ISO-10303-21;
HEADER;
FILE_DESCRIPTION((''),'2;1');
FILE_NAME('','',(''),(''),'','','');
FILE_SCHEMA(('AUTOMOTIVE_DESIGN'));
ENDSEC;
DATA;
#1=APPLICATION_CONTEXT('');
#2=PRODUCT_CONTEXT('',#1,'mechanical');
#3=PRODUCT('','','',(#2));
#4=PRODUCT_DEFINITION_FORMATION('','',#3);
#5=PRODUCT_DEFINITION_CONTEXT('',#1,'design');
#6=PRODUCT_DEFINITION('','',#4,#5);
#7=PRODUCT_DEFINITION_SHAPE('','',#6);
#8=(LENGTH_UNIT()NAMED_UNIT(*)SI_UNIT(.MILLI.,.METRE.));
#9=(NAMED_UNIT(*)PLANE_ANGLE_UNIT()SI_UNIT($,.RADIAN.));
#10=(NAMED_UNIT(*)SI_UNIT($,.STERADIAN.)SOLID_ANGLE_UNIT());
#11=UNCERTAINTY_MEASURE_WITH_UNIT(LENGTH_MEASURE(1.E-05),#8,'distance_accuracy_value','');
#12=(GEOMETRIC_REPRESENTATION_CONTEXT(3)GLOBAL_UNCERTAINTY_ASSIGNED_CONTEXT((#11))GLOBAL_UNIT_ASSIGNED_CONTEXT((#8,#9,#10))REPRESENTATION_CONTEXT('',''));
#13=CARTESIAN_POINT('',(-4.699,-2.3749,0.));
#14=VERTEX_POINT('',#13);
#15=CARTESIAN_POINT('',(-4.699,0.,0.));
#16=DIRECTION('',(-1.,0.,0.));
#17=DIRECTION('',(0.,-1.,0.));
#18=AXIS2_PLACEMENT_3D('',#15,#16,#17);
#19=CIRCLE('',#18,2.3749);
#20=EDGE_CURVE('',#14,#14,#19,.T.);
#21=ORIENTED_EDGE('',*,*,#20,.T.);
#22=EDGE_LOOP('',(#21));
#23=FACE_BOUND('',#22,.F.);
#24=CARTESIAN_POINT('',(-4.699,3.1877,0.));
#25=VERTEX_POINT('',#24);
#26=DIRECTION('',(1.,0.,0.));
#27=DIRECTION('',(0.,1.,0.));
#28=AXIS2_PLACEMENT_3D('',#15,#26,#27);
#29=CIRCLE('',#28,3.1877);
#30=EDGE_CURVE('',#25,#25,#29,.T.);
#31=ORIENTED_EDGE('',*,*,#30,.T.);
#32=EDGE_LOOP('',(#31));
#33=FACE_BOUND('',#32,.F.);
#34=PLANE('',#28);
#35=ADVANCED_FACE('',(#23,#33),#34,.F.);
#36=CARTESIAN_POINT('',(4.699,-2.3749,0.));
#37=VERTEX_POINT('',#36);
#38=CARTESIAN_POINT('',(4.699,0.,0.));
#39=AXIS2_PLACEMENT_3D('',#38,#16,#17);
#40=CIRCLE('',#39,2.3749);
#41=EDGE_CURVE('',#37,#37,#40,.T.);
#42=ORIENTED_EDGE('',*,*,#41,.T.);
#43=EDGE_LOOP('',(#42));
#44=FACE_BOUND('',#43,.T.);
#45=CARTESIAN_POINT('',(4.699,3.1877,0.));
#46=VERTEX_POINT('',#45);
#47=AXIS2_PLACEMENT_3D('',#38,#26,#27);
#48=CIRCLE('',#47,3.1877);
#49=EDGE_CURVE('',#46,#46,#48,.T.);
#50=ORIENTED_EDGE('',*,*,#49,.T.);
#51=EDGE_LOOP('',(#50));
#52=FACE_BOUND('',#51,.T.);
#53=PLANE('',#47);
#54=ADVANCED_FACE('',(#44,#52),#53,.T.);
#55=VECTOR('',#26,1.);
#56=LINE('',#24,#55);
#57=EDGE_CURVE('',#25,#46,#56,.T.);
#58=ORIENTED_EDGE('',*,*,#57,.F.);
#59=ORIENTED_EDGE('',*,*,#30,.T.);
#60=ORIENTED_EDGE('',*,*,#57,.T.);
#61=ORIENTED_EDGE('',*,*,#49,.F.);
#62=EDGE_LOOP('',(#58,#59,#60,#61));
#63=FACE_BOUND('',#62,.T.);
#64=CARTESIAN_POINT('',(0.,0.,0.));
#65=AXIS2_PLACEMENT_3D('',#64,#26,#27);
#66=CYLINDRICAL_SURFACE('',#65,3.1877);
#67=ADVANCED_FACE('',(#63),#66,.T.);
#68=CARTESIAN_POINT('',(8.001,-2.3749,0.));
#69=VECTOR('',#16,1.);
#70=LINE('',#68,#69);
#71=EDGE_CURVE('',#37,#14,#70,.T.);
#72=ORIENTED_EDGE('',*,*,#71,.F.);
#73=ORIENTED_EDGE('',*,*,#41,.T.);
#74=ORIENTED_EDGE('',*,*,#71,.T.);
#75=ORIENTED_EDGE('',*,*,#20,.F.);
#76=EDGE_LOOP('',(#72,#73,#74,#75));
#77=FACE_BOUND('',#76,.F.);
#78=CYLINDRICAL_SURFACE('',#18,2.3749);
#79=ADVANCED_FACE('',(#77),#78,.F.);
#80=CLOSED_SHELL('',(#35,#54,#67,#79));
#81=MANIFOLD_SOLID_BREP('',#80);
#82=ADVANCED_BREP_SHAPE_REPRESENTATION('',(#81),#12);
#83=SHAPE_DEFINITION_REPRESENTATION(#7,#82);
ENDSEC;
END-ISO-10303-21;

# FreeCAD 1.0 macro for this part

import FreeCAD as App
import Part
import Sketcher

V = App.Vector
Q = App.Units.Quantity

doc = App.newDocument("Part")
body = doc.addObject("PartDesign::Body", "Body")

sketch1 = body.newObject("Sketcher::SketchObject", "Sketch")
sketch1.AttachmentSupport = (doc.getObject("YZ_Plane"), [""])
sketch1.MapMode = "FlatFace"
sketch1.addGeometry(Part.Circle(V(0, 0, 0), V(0, 0, 1), 3.2), False)
sketch1.addConstraint([
    Sketcher.Constraint("Coincident", 0, 3, -1, 1),
    Sketcher.Constraint("Diameter", 0, Q("0.251 in")),
])
pad1 = body.newObject("PartDesign::Pad", "Pad")
pad1.Profile = sketch1
pad1.Length = Q("0.37 in")
pad1.Midplane = True

sketch2 = body.newObject("Sketcher::SketchObject", "Sketch001")
sketch2.AttachmentSupport = (doc.getObject("YZ_Plane"), [""])
sketch2.MapMode = "FlatFace"
sketch2.AttachmentOffset = App.Placement(V(0, 0, -0.185 * 25.4), App.Rotation())
sketch2.addGeometry(Part.Circle(V(0, 0, 0), V(0, 0, 1), 2.4), False)
sketch2.addConstraint([
    Sketcher.Constraint("Coincident", 0, 3, -1, 1),
    Sketcher.Constraint("Diameter", 0, Q("0.187 in")),
])
pocket1 = body.newObject("PartDesign::Pocket", "Pocket")
pocket1.Profile = sketch2
pocket1.Length = Q("1 in")
pocket1.Midplane = True

doc.recompute()
